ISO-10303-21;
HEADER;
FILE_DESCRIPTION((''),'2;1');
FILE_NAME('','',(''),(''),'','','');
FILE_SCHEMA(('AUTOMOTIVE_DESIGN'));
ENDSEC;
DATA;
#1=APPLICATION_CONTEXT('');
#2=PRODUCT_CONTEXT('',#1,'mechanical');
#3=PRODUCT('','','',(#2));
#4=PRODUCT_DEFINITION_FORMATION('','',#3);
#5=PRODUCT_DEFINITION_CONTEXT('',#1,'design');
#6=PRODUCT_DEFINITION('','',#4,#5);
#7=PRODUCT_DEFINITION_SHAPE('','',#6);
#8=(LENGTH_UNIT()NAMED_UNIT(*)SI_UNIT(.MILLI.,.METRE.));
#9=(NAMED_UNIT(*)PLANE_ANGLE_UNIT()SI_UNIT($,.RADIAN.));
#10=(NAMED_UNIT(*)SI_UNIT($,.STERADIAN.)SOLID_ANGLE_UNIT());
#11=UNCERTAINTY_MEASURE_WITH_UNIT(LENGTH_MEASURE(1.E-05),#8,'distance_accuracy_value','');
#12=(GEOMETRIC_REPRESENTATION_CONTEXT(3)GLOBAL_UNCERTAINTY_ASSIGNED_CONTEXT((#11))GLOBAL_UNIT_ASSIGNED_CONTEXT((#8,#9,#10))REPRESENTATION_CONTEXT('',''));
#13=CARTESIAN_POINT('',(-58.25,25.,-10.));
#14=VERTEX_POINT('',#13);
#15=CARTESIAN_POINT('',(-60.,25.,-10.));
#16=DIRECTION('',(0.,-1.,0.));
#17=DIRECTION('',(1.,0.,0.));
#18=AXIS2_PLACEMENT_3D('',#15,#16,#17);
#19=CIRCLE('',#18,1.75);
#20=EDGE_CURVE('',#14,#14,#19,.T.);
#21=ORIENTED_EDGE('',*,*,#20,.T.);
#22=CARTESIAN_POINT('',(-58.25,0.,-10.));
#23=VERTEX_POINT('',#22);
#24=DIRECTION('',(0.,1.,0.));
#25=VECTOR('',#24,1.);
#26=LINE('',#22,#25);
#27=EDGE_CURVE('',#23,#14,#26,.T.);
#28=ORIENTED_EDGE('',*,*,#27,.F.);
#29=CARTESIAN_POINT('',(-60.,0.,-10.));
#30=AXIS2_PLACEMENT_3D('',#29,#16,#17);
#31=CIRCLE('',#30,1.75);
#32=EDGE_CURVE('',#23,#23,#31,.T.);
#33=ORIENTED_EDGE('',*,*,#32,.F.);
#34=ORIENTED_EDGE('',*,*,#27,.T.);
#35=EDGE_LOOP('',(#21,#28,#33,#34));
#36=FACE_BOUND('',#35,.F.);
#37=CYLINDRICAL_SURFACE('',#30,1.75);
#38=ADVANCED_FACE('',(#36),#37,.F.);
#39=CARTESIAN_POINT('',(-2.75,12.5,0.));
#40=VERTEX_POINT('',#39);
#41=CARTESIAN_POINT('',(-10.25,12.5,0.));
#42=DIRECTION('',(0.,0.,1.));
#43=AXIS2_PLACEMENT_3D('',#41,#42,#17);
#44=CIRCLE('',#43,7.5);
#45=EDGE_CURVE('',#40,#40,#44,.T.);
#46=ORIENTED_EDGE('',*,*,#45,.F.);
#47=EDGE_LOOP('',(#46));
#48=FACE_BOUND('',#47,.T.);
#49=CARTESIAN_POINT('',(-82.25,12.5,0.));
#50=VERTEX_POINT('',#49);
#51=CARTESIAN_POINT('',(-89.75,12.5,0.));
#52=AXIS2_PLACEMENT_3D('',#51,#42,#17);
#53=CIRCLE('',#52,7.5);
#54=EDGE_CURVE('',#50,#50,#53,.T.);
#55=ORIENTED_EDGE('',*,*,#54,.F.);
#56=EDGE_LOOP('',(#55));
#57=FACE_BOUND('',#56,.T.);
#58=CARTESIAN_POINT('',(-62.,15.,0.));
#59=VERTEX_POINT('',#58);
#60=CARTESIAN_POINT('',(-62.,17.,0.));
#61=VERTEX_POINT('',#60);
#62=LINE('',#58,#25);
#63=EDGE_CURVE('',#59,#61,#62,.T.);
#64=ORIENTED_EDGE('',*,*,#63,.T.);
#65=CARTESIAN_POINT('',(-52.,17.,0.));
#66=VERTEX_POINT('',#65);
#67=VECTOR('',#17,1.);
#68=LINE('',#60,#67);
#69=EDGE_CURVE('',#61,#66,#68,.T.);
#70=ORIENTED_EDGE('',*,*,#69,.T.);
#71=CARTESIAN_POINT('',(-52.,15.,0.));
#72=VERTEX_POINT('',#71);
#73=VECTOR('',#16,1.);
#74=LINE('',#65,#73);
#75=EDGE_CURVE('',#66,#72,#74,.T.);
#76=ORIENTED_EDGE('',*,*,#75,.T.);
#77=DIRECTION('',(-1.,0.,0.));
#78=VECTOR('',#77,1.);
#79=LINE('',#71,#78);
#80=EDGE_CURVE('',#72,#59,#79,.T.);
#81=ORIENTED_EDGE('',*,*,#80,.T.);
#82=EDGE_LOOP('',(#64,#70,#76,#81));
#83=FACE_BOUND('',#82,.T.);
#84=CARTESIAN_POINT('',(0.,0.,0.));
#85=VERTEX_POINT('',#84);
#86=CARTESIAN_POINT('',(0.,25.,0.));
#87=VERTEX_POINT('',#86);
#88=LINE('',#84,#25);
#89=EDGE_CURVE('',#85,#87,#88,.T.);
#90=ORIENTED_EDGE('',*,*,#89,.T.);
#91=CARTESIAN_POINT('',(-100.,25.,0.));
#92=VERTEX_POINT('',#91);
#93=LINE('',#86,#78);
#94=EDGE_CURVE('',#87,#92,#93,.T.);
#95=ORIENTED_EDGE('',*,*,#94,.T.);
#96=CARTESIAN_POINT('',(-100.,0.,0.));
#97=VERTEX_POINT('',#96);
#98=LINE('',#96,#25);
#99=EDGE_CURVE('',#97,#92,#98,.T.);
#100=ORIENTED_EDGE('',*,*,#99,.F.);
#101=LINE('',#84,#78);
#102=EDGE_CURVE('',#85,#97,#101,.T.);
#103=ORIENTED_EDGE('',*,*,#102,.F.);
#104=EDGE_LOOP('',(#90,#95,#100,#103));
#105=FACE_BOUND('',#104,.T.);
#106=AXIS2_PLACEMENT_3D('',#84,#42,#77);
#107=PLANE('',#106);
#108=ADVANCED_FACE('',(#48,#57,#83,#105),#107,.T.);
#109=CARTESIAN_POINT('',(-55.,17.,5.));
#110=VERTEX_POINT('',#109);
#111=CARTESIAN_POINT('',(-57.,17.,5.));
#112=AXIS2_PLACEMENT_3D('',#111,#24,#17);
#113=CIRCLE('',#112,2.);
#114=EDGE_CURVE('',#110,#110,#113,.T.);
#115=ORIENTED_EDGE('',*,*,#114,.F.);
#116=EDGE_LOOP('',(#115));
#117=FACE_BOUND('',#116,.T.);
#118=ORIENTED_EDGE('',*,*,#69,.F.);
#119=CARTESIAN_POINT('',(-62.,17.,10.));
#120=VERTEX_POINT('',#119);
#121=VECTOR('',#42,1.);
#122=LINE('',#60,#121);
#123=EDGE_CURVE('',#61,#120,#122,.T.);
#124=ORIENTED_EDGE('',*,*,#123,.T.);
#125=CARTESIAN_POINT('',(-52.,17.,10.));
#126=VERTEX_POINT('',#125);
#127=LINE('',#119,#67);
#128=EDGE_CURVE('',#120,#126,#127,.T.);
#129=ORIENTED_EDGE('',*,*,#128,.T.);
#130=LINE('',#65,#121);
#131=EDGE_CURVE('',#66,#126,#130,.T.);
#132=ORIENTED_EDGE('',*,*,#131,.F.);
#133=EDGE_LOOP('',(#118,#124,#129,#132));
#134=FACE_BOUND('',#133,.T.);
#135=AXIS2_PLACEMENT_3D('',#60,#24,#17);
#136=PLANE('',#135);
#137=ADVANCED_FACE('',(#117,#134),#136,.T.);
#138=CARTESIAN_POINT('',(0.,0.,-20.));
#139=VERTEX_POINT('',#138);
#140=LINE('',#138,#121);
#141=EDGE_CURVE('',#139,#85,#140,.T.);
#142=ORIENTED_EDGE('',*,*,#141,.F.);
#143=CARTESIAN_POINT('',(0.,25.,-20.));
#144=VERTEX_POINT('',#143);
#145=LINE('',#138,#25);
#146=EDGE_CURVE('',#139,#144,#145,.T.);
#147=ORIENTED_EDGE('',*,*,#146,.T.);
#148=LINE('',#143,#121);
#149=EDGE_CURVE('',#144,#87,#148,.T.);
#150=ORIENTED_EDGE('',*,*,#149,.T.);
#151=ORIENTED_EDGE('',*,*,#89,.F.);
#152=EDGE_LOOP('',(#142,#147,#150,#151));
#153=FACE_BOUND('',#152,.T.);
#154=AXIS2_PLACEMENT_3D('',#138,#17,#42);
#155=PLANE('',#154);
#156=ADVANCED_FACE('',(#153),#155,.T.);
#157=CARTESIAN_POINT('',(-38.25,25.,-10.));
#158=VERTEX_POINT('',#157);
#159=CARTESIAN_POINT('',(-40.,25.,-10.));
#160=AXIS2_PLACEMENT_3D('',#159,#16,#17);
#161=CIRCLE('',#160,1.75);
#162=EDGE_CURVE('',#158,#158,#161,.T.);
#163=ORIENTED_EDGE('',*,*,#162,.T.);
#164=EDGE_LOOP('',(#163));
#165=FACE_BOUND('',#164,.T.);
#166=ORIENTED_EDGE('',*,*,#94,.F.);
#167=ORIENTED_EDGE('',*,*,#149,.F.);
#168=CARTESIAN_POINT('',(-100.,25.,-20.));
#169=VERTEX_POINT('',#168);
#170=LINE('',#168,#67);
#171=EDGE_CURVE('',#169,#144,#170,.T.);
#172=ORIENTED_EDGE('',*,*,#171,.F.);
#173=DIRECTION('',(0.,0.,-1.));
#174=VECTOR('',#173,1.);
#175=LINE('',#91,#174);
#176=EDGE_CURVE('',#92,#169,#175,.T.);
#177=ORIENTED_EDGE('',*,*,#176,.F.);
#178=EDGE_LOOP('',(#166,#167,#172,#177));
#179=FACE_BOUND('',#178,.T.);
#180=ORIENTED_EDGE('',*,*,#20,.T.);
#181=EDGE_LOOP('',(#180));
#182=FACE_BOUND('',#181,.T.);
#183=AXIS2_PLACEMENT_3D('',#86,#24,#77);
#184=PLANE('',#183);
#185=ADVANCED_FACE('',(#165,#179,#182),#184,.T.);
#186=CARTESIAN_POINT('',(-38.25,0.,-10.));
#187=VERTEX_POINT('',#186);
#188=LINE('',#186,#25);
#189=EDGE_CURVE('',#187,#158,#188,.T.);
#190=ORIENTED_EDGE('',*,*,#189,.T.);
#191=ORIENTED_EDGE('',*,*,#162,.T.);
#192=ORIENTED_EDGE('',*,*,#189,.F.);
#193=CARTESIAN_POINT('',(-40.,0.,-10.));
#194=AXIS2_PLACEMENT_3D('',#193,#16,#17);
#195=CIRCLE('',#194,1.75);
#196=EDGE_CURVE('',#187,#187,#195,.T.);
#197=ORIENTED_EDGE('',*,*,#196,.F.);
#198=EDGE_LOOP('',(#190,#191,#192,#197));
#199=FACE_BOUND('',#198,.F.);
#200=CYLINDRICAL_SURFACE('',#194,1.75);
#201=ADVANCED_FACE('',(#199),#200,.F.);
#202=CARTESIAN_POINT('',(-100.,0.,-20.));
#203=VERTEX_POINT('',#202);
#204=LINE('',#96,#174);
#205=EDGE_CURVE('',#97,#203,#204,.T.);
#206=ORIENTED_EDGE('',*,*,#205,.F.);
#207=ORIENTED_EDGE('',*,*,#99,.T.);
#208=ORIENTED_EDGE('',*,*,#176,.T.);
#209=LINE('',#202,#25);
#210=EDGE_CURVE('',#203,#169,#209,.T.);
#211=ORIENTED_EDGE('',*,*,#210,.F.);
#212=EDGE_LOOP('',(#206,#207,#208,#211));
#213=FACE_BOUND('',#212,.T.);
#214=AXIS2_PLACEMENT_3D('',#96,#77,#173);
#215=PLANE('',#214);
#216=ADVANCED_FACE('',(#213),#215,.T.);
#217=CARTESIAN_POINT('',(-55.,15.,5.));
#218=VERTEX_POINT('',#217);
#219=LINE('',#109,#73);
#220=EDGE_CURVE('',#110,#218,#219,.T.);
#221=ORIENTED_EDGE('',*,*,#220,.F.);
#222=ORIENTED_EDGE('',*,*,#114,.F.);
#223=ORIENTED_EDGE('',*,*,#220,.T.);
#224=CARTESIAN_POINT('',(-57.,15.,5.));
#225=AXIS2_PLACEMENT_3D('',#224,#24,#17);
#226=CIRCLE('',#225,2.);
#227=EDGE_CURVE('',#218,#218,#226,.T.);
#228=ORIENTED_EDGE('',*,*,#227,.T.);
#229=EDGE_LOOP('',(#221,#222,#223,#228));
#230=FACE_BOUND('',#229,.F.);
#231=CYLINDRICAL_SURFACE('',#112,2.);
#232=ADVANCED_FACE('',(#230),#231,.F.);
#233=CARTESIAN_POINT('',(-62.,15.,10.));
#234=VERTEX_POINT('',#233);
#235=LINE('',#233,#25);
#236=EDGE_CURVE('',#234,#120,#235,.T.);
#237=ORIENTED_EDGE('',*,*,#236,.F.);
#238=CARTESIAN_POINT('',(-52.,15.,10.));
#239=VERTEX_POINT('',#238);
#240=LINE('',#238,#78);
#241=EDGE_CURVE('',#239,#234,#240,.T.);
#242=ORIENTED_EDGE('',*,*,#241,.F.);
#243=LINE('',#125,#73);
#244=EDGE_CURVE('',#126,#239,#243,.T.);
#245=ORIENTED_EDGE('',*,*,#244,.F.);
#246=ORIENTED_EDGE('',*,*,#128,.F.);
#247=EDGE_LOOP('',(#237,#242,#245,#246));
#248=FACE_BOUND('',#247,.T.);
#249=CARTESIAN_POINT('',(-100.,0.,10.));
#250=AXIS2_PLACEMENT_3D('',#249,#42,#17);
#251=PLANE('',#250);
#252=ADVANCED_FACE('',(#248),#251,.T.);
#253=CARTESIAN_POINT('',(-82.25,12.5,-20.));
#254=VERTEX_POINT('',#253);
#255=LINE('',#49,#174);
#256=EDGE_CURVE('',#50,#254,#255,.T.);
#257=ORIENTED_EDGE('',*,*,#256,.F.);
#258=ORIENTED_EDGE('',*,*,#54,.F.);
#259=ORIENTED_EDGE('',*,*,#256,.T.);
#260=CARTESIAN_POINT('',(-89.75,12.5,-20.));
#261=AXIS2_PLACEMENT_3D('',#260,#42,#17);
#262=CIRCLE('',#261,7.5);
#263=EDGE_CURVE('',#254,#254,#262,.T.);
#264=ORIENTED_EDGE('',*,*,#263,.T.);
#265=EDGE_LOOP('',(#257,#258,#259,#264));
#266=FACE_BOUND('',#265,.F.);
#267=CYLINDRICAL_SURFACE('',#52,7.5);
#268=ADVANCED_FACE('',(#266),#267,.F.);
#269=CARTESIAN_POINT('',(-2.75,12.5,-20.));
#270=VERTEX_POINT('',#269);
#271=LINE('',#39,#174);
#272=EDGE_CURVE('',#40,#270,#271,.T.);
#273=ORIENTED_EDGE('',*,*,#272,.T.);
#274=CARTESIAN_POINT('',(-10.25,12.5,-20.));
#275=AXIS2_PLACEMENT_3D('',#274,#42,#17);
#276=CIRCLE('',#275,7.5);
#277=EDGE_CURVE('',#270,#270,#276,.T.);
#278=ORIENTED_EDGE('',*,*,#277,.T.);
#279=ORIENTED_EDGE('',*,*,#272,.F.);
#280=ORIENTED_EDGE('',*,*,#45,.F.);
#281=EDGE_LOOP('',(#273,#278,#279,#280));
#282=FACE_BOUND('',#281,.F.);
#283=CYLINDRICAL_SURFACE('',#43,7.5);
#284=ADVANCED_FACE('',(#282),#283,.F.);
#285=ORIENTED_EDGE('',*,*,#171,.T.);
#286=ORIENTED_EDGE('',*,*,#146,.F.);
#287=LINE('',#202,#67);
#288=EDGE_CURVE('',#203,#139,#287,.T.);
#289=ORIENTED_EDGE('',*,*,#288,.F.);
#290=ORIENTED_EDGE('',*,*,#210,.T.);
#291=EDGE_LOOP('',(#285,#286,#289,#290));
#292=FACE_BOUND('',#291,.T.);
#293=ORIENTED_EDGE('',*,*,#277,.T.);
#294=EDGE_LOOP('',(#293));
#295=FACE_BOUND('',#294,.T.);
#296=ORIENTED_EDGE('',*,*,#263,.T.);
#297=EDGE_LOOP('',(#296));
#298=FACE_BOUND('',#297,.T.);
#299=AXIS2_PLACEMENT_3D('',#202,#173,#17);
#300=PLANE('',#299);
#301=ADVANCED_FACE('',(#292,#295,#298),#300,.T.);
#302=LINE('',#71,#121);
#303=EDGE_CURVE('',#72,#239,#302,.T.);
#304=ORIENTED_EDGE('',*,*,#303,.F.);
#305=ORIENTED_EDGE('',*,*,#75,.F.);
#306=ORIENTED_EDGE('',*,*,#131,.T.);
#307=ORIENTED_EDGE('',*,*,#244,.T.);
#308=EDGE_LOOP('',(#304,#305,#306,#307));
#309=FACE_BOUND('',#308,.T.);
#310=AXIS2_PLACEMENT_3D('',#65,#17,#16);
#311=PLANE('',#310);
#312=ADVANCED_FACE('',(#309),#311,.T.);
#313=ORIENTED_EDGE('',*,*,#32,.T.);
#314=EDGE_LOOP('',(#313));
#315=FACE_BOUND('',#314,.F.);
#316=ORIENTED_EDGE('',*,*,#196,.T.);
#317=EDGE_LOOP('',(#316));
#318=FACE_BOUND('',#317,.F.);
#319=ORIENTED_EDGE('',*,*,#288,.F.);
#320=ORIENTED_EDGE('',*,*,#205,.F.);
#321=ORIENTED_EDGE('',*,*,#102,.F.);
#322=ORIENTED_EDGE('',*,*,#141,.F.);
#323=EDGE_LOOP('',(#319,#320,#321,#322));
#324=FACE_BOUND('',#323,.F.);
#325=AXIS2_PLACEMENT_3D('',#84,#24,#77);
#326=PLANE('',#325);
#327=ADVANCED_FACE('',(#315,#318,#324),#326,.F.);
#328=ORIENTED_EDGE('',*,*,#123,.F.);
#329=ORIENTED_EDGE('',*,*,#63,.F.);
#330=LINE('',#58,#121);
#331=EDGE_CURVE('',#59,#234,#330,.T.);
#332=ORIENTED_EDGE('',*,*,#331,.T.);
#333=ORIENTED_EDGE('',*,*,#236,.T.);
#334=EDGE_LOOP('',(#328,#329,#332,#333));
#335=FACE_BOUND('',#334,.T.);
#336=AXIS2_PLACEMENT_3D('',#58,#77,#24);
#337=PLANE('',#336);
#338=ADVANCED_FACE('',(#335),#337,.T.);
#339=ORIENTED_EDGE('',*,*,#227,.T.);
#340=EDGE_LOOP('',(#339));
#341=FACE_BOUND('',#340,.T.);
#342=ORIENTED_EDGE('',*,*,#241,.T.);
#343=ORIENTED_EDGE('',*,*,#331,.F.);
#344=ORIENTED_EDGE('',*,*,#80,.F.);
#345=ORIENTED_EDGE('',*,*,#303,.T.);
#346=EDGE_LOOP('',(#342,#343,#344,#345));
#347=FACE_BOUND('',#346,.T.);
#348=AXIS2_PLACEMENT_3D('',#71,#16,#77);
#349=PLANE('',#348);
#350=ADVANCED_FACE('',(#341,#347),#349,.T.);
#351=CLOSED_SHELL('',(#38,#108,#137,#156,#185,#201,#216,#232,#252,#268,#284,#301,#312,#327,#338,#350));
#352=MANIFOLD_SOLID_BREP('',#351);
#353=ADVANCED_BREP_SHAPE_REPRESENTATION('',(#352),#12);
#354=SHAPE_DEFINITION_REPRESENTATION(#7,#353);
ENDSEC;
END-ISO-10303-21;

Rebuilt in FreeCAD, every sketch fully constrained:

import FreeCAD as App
import Part
import Sketcher
from FreeCAD import Vector
Q = App.Units.Quantity


def add_polygon(sketch, points):
    """Adds a closed chain of lines whose ends are joined by coincident constraints."""
    first, n = sketch.GeometryCount, len(points)
    for a, b in zip(points, points[1:] + points[:1]):
        sketch.addGeometry(Part.LineSegment(App.Vector(*a, 0), App.Vector(*b, 0)), False)
    for i in range(n):
        sketch.addConstraint(Sketcher.Constraint("Coincident", first + i, 2, first + (i + 1) % n, 1))

doc = App.newDocument("Part")
body = doc.addObject("PartDesign::Body", "Body")

sketch1 = body.newObject("Sketcher::SketchObject", "Sketch")
sketch1.AttachmentSupport = (doc.getObject("XZ_Plane"), [""])
sketch1.MapMode = "FlatFace"
add_polygon(sketch1, [(-100, 0), (0, 0), (0, -20), (-100, -20)])
sketch1.addConstraint(Sketcher.Constraint("Horizontal", 0))
sketch1.addConstraint(Sketcher.Constraint("Vertical", 1))
sketch1.addConstraint(Sketcher.Constraint("Horizontal", 2))
sketch1.addConstraint(Sketcher.Constraint("Vertical", 3))
sketch1.addConstraint(Sketcher.Constraint("Coincident", 0, 2, -1, 1))
sketch1.addConstraint(Sketcher.Constraint("DistanceX", 0, 1, 0, 2, Q("100 mm")))
sketch1.addConstraint(Sketcher.Constraint("DistanceY", 1, 2, 1, 1, Q("20 mm")))
pad1 = body.newObject("PartDesign::Pad", "Pad")
pad1.Profile = sketch1
pad1.Length = 25
pad1.Reversed = True

sketch2 = body.newObject("Sketcher::SketchObject", "Sketch001")
sketch2.AttachmentSupport = (doc.getObject("XY_Plane"), [""])
sketch2.MapMode = "FlatFace"
sketch2.addGeometry(Part.Circle(Vector(-90, 12, 0), Vector(0, 0, 1), 8), False)
sketch2.addGeometry(Part.Circle(Vector(-10, 12, 0), Vector(0, 0, 1), 8), False)
sketch2.addConstraint(Sketcher.Constraint("Equal", 0, 1))
sketch2.addConstraint(Sketcher.Constraint("Horizontal", 0, 3, 1, 3))
sketch2.addConstraint(Sketcher.Constraint("Diameter", 0, Q("15 mm")))
sketch2.addConstraint(Sketcher.Constraint("DistanceY", -1, 1, 0, 3, Q("12.5 mm")))
sketch2.addConstraint(Sketcher.Constraint("DistanceX", 0, 3, 1, 3, Q("79.5 mm")))
sketch2.addConstraint(Sketcher.Constraint("DistanceX", 0, 3, -1, 1, Q("89.75 mm")))
pocket1 = body.newObject("PartDesign::Pocket", "Pocket")
pocket1.Profile = sketch2
pocket1.Length = 20

sketch3 = body.newObject("Sketcher::SketchObject", "Sketch002")
sketch3.AttachmentSupport = (doc.getObject("XY_Plane"), [""])
sketch3.MapMode = "FlatFace"
add_polygon(sketch3, [(-52, 17), (-62, 17), (-62, 15), (-52, 15)])
sketch3.addConstraint(Sketcher.Constraint("Horizontal", 0))
sketch3.addConstraint(Sketcher.Constraint("Vertical", 1))
sketch3.addConstraint(Sketcher.Constraint("Horizontal", 2))
sketch3.addConstraint(Sketcher.Constraint("Vertical", 3))
sketch3.addConstraint(Sketcher.Constraint("DistanceX", 0, 2, 0, 1, Q("10 mm")))
sketch3.addConstraint(Sketcher.Constraint("DistanceY", 1, 2, 1, 1, Q("2 mm")))
sketch3.addConstraint(Sketcher.Constraint("DistanceX", 0, 2, -1, 1, Q("62 mm")))
sketch3.addConstraint(Sketcher.Constraint("DistanceY", -1, 1, 0, 2, Q("17 mm")))
pad2 = body.newObject("PartDesign::Pad", "Pad001")
pad2.Profile = sketch3
pad2.Length = 10

sketch4 = body.newObject("Sketcher::SketchObject", "Sketch003")
sketch4.AttachmentSupport = (doc.getObject("XZ_Plane"), [""])
sketch4.MapMode = "FlatFace"
sketch4.AttachmentOffset = App.Placement(Vector(0, 0, -17), App.Rotation())
sketch4.addGeometry(Part.Circle(Vector(-57, 5, 0), Vector(0, 0, 1), 2), False)
sketch4.addConstraint(Sketcher.Constraint("Diameter", 0, Q("4 mm")))
sketch4.addConstraint(Sketcher.Constraint("DistanceX", 0, 3, -1, 1, Q("57 mm")))
sketch4.addConstraint(Sketcher.Constraint("DistanceY", -1, 1, 0, 3, Q("5 mm")))
pocket2 = body.newObject("PartDesign::Pocket", "Pocket001")
pocket2.Profile = sketch4
pocket2.Length = 2
pocket2.Reversed = True

sketch5 = body.newObject("Sketcher::SketchObject", "Sketch004")
sketch5.AttachmentSupport = (doc.getObject("XZ_Plane"), [""])
sketch5.MapMode = "FlatFace"
sketch5.addGeometry(Part.Circle(Vector(-60, -10, 0), Vector(0, 0, 1), 1.8), False)
sketch5.addGeometry(Part.Circle(Vector(-40, -10, 0), Vector(0, 0, 1), 1.8), False)
sketch5.addConstraint(Sketcher.Constraint("Equal", 0, 1))
sketch5.addConstraint(Sketcher.Constraint("Horizontal", 0, 3, 1, 3))
sketch5.addConstraint(Sketcher.Constraint("Diameter", 0, Q("3.5 mm")))
sketch5.addConstraint(Sketcher.Constraint("DistanceX", 0, 3, -1, 1, Q("60 mm")))
sketch5.addConstraint(Sketcher.Constraint("DistanceY", 0, 3, -1, 1, Q("10 mm")))
sketch5.addConstraint(Sketcher.Constraint("DistanceX", 1, 3, -1, 1, Q("40 mm")))
pocket3 = body.newObject("PartDesign::Pocket", "Pocket002")
pocket3.Profile = sketch5
pocket3.Length = 25

doc.recompute()
